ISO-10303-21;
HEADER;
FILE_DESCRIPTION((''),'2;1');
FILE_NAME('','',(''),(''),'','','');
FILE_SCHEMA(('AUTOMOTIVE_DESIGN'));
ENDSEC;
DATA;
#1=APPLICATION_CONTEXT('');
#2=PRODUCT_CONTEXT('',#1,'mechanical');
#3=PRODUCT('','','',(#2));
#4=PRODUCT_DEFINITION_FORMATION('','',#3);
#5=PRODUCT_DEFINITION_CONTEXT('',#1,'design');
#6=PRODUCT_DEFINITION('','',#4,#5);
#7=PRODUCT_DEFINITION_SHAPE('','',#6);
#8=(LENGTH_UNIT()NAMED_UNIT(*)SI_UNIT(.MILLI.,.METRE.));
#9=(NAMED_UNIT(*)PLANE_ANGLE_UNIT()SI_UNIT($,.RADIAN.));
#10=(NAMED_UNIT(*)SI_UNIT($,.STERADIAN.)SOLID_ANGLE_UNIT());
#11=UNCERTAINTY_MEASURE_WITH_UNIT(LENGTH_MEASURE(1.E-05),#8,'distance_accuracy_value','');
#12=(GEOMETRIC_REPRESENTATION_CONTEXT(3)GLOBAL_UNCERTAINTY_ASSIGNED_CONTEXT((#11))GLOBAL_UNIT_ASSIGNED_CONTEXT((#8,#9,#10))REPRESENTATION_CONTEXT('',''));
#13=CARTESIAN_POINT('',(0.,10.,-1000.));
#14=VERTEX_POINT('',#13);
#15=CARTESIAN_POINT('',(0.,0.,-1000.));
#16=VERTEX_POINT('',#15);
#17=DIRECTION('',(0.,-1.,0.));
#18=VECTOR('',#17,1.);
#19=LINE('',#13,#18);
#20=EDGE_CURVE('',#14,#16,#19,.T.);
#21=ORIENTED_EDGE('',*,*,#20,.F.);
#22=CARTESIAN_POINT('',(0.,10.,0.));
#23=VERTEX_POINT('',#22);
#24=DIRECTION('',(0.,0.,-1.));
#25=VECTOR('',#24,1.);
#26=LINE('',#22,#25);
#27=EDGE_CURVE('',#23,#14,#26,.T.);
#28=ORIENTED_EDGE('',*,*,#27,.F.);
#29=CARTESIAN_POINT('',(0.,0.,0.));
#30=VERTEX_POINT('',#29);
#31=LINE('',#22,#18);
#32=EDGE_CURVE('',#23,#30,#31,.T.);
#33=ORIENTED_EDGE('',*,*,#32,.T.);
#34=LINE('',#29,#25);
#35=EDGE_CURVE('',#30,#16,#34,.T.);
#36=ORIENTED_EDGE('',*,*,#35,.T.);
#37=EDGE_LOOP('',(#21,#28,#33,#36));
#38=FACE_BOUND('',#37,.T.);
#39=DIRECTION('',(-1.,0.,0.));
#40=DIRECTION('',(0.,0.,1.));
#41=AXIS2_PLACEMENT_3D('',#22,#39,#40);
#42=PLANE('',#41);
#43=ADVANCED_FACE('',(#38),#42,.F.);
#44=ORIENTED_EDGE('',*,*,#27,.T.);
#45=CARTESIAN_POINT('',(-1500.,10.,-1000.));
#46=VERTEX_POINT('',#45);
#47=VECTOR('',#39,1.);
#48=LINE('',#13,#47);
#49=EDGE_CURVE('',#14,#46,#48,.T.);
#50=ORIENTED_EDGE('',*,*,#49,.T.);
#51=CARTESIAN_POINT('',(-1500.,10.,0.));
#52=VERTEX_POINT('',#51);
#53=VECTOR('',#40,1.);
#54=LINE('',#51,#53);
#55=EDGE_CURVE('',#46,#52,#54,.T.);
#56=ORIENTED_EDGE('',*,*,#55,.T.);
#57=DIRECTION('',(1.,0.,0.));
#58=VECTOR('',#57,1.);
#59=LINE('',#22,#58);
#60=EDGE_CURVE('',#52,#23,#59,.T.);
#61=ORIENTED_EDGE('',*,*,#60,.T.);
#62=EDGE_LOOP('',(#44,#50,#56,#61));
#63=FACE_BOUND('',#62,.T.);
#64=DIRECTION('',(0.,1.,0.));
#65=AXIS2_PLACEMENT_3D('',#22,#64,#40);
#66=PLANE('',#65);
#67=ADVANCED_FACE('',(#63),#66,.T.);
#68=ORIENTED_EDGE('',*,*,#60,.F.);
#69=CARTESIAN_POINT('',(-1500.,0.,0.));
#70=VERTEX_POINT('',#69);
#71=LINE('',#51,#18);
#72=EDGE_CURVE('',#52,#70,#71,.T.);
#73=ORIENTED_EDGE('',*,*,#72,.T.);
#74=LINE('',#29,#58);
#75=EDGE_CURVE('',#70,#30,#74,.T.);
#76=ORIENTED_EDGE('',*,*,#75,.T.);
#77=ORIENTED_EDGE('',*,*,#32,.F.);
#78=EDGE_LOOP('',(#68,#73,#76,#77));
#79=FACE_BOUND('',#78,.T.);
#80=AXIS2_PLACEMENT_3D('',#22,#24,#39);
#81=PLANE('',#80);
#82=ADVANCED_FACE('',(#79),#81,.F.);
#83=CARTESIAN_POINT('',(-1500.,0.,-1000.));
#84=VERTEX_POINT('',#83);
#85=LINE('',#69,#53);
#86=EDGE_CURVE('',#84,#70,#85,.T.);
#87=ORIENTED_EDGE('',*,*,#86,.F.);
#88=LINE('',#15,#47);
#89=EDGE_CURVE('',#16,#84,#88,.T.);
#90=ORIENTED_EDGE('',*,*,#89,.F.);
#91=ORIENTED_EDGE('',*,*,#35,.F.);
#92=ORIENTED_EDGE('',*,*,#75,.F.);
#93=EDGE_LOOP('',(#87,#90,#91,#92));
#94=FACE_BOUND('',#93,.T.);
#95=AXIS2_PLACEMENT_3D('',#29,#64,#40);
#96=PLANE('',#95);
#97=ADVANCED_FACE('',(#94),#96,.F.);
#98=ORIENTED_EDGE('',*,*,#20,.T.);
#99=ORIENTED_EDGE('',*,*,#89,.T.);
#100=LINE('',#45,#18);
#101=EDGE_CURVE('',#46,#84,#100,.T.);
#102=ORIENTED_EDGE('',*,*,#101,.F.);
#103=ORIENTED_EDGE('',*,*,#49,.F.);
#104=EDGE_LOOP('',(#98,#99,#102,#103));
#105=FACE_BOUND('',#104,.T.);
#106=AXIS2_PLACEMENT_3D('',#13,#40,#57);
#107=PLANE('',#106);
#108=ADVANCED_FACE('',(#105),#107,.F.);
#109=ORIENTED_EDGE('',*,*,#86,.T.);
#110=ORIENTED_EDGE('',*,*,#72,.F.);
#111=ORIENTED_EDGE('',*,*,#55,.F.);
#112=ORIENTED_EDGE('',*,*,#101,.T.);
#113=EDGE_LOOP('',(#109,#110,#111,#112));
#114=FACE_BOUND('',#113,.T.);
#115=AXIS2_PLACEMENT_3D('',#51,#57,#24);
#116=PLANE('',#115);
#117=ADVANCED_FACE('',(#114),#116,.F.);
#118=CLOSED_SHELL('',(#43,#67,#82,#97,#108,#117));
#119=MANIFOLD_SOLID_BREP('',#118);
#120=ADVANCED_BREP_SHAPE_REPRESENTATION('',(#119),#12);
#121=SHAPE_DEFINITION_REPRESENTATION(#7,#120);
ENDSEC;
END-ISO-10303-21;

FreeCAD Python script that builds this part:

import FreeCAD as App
import Part
import Sketcher

V = App.Vector
Q = App.Units.Quantity


def add_polygon(sketch, points):
    """Adds a closed chain of lines whose ends are joined by coincident constraints."""
    first, n = sketch.GeometryCount, len(points)
    for a, b in zip(points, points[1:] + points[:1]):
        sketch.addGeometry(Part.LineSegment(App.Vector(*a, 0), App.Vector(*b, 0)), False)
    for i in range(n):
        sketch.addConstraint(Sketcher.Constraint("Coincident", first + i, 2, first + (i + 1) % n, 1))

doc = App.newDocument("Part")
body = doc.addObject("PartDesign::Body", "Body")

# Sketch on XZ plane
sketch1 = doc.addObject("Sketcher::SketchObject", "Sketch")
body.addObject(sketch1)
sketch1.AttachmentSupport = (doc.XZ_Plane, [""])
sketch1.MapMode = "FlatFace"
add_polygon(sketch1, [(-1500, -1000), (-1500, 0), (0, 0), (0, -1000)])  # lines 0-3
sketch1.addConstraint(Sketcher.Constraint("Vertical", 0))
sketch1.addConstraint(Sketcher.Constraint("Horizontal", 1))
sketch1.addConstraint(Sketcher.Constraint("Vertical", 2))
sketch1.addConstraint(Sketcher.Constraint("Horizontal", 3))
sketch1.addConstraint(Sketcher.Constraint("Coincident", 1, 2, -1, 1))
sketch1.addConstraint(Sketcher.Constraint("DistanceX", 1, 1, 1, 2, Q("1500 mm")))
sketch1.addConstraint(Sketcher.Constraint("DistanceY", 0, 1, 0, 2, Q("1000 mm")))
pad1 = doc.addObject("PartDesign::Pad", "Pad")
body.addObject(pad1)
pad1.Profile = sketch1
pad1.Length = 10
pad1.Reversed = True

doc.recompute()
